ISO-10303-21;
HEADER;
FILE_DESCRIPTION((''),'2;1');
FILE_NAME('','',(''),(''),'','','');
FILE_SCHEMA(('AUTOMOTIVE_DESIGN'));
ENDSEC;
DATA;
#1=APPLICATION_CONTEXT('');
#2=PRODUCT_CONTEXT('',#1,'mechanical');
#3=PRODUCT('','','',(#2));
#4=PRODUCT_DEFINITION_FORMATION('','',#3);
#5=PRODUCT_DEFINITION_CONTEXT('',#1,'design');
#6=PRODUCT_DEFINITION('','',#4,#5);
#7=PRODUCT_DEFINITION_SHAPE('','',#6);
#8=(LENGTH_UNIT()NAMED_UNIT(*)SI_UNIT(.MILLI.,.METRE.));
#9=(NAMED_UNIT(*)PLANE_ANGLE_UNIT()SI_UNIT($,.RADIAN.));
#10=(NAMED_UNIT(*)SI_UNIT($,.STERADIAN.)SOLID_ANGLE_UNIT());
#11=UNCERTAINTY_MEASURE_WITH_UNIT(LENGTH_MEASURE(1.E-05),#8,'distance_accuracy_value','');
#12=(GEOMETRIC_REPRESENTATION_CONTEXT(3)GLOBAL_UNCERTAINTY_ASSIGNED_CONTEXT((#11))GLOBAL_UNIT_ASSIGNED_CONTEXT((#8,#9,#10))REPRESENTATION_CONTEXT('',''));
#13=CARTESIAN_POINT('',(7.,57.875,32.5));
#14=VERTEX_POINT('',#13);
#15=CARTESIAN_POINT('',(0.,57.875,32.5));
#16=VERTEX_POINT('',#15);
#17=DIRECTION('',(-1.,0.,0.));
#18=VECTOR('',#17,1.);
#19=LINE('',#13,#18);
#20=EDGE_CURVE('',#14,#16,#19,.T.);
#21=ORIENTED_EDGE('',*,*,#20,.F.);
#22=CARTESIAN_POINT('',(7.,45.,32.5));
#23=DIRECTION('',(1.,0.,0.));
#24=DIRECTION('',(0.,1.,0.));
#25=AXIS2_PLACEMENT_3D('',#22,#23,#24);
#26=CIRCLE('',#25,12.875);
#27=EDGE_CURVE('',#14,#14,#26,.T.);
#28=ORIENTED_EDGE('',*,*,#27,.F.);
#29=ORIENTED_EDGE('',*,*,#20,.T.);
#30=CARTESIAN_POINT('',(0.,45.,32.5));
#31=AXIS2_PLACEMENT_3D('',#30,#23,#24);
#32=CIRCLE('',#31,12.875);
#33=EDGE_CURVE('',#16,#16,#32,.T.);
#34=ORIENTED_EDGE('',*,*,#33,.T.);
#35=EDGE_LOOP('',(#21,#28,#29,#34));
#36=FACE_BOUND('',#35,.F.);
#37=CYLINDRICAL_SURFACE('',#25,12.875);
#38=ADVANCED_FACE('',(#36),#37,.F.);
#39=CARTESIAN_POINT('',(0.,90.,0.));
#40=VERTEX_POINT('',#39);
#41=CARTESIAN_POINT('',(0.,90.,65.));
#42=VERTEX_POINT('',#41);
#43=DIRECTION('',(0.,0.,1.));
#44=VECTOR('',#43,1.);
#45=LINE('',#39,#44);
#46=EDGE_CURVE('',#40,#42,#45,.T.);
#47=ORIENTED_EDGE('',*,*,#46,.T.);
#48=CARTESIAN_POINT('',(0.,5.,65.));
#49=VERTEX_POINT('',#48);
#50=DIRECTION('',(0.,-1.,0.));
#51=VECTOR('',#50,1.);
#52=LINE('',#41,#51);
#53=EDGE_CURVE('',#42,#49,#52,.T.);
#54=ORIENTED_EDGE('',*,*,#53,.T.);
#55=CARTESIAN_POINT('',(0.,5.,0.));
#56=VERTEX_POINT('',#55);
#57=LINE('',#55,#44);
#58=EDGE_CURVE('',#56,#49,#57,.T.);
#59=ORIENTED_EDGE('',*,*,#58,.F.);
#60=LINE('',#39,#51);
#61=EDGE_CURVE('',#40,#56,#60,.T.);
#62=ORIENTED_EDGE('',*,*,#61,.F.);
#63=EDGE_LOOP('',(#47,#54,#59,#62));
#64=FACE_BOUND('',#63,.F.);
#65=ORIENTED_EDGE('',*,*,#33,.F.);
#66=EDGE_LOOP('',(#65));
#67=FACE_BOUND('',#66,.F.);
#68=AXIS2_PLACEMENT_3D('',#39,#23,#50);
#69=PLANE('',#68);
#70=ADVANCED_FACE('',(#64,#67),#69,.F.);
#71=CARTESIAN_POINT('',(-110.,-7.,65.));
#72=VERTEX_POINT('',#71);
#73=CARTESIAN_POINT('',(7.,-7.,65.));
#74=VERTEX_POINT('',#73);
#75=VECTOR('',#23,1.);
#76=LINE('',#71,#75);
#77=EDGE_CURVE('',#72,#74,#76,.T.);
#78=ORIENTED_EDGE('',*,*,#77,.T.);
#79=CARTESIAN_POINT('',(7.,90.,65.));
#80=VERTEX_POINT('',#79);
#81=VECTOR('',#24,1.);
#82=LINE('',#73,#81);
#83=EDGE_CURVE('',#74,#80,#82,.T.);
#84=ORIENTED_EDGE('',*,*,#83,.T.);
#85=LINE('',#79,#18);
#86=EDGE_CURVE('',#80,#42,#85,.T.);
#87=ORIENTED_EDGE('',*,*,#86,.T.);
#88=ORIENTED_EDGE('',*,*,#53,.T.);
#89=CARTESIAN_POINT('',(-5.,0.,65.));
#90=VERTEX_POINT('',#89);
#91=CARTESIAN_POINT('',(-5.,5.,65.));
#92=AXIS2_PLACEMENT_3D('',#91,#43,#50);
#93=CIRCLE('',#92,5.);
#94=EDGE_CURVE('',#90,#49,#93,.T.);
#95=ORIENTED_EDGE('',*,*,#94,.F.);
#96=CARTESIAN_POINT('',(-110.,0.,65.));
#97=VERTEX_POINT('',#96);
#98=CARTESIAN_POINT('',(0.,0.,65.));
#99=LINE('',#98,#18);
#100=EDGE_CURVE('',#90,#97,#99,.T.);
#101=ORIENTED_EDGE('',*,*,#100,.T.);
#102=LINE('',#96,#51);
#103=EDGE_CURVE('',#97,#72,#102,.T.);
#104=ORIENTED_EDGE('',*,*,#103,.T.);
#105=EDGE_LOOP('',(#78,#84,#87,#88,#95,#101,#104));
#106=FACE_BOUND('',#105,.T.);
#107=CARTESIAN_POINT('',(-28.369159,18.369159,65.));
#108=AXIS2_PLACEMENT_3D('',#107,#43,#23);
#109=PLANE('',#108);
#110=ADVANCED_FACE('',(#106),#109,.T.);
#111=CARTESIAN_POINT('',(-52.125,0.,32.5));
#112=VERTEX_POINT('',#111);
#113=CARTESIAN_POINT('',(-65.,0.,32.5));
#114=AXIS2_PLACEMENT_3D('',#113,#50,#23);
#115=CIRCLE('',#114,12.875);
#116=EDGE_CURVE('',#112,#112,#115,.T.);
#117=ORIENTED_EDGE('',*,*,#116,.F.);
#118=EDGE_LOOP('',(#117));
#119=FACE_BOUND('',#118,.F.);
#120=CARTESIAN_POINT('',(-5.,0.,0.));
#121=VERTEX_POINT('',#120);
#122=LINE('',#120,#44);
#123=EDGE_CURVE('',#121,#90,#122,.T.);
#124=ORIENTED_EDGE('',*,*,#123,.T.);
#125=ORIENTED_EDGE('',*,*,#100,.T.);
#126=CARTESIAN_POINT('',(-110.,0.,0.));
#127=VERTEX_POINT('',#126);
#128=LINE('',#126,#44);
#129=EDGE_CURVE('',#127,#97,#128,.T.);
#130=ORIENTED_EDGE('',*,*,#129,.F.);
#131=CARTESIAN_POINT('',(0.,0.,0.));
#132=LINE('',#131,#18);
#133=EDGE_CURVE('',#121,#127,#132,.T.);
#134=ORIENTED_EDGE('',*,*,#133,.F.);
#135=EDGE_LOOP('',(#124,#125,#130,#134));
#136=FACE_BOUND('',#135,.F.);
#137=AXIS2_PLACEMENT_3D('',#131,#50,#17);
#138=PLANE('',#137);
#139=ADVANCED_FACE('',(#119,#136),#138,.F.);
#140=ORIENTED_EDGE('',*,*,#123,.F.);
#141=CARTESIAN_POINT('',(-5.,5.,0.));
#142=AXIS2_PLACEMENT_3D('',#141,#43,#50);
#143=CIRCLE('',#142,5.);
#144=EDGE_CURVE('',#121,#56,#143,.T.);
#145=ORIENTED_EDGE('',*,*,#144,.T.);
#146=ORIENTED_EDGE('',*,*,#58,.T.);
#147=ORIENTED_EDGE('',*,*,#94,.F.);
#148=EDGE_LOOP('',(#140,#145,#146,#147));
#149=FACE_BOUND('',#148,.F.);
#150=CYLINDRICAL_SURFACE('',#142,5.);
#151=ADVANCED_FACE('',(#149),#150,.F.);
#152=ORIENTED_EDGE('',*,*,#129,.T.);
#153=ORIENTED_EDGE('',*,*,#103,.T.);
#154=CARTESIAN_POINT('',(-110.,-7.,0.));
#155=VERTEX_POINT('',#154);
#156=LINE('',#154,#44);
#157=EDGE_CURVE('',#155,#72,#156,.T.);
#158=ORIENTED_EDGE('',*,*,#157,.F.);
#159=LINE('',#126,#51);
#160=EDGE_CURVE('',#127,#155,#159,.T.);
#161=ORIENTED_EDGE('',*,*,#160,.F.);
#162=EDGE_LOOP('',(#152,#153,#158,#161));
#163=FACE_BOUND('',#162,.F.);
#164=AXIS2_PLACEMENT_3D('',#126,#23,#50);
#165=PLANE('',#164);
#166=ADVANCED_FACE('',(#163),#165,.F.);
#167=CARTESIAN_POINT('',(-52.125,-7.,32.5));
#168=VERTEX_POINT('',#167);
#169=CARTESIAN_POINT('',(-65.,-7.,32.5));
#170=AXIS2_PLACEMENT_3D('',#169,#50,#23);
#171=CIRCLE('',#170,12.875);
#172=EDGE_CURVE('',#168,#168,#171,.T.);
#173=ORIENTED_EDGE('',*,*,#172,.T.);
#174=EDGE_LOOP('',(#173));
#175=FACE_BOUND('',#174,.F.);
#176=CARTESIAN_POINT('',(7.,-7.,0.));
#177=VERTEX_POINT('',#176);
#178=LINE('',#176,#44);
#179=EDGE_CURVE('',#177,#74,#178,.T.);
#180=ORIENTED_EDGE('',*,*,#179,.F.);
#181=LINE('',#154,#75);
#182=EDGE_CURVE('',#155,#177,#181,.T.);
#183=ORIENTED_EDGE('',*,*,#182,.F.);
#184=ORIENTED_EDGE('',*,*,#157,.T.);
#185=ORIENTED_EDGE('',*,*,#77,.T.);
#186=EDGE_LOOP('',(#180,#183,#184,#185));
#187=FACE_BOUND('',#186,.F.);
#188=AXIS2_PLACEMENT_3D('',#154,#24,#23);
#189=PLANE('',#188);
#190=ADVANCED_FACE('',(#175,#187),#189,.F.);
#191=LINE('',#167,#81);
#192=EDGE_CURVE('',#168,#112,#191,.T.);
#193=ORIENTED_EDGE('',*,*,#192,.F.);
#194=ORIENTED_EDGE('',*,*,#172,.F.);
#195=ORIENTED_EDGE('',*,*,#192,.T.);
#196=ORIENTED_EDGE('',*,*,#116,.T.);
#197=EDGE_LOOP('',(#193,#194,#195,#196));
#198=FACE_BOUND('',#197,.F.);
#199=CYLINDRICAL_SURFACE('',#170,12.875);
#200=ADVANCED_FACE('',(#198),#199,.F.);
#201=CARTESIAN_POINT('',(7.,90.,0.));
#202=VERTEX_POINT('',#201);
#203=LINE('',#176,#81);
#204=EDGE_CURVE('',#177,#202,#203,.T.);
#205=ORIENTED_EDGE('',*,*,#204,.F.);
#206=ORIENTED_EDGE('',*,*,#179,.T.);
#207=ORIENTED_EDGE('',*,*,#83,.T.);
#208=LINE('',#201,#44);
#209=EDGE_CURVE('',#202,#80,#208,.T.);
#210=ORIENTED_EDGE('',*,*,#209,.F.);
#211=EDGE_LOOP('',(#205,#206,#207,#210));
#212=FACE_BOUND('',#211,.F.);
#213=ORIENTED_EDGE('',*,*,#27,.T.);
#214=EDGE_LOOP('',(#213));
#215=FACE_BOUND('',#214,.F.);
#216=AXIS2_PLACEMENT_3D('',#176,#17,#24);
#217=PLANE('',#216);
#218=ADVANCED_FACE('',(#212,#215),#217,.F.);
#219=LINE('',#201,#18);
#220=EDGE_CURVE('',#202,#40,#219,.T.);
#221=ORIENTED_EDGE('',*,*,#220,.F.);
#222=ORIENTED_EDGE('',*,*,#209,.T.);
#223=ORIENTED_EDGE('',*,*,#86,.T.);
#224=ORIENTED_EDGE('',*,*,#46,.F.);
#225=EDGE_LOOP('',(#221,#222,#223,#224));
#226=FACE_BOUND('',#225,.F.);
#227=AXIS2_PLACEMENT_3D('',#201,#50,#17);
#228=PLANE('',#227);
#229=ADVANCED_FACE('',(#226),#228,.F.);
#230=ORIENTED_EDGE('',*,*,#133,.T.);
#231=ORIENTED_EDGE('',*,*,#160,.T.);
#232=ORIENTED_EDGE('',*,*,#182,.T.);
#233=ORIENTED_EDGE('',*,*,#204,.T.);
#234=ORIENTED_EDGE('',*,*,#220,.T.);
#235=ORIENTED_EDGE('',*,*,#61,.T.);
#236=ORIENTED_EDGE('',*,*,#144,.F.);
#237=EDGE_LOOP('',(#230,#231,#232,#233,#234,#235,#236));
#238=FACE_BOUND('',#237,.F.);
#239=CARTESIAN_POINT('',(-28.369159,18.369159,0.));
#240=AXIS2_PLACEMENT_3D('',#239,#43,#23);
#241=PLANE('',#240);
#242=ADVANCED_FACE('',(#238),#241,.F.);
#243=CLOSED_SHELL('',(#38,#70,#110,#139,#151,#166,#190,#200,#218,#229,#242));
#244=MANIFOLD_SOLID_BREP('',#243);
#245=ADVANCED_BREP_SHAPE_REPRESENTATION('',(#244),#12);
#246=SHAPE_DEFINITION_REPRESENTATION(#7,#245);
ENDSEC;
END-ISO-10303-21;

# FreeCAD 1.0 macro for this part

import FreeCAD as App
import Part
import Sketcher

V = App.Vector


def edges_at(feature, points):
    """Names of the edges that pass closest to the given points."""
    edges = feature.Shape.Edges
    near = lambda p: min(range(len(edges)), key=lambda i: edges[i].distToShape(Part.Vertex(*p))[0])
    return sorted({f"Edge{near(p) + 1}" for p in points})


def add_polygon(sketch, points):
    """Adds a closed chain of lines whose ends are joined by coincident constraints."""
    first, n = sketch.GeometryCount, len(points)
    for a, b in zip(points, points[1:] + points[:1]):
        sketch.addGeometry(Part.LineSegment(App.Vector(*a, 0), App.Vector(*b, 0)), False)
    for i in range(n):
        sketch.addConstraint(Sketcher.Constraint("Coincident", first + i, 2, first + (i + 1) % n, 1))

doc = App.newDocument("Part")
body = doc.addObject("PartDesign::Body", "Body")

sketch1 = doc.addObject("Sketcher::SketchObject", "Sketch")
body.addObject(sketch1)
sketch1.AttachmentSupport = (doc.XY_Plane, [""])
sketch1.MapMode = "FlatFace"
add_polygon(sketch1, [(0, 0), (-110, 0), (-110, -7), (7, -7), (7, 90), (0, 90)])
sketch1.addConstraint([
    Sketcher.Constraint("Horizontal", 0),
    Sketcher.Constraint("Vertical", 1),
    Sketcher.Constraint("Horizontal", 2),
    Sketcher.Constraint("Vertical", 3),
    Sketcher.Constraint("Horizontal", 4),
    Sketcher.Constraint("Vertical", 5),
    Sketcher.Constraint("Coincident", 5, 2, -1, 1),
    Sketcher.Constraint("Equal", 4, 1),
    Sketcher.Constraint("DistanceX", 0, 2, 0, 1, 110.0),
    Sketcher.Constraint("DistanceX", 2, 1, 2, 2, 117.0),
    Sketcher.Constraint("DistanceY", 3, 1, 3, 2, 97.0),
])
pad1 = doc.addObject("PartDesign::Pad", "Pad")
body.addObject(pad1)
pad1.Profile = sketch1
pad1.Length = 65
doc.recompute()

fillet = doc.addObject("PartDesign::Fillet", "Fillet")
body.addObject(fillet)
fillet.Base = (pad1, edges_at(pad1, [(0, 0, 32.5)]))
fillet.Radius = 5

sketch2 = doc.addObject("Sketcher::SketchObject", "Sketch001")
body.addObject(sketch2)
sketch2.AttachmentSupport = (doc.YZ_Plane, [""])
sketch2.MapMode = "FlatFace"
sketch2.AttachmentOffset = App.Placement(V(0, 0, 7), App.Rotation())
sketch2.addGeometry(Part.Circle(V(45, 32, 0), V(0, 0, 1), 13), False)
sketch2.addConstraint([
    Sketcher.Constraint("Diameter", 0, 25.75),
    Sketcher.Constraint("DistanceX", -1, 1, 0, 3, 45.0),
    Sketcher.Constraint("DistanceY", -1, 1, 0, 3, 32.5),
])
pocket1 = doc.addObject("PartDesign::Pocket", "Pocket")
body.addObject(pocket1)
pocket1.Profile = sketch2
pocket1.Length = 7

sketch3 = doc.addObject("Sketcher::SketchObject", "Sketch002")
body.addObject(sketch3)
sketch3.AttachmentSupport = (doc.XZ_Plane, [""])
sketch3.MapMode = "FlatFace"
sketch3.AttachmentOffset = App.Placement(V(0, 0, 7), App.Rotation())
sketch3.addGeometry(Part.Circle(V(-65, 32, 0), V(0, 0, 1), 13), False)
sketch3.addConstraint([
    Sketcher.Constraint("Diameter", 0, 25.75),
    Sketcher.Constraint("DistanceX", 0, 3, -1, 1, 65.0),
    Sketcher.Constraint("DistanceY", -1, 1, 0, 3, 32.5),
])
pocket2 = doc.addObject("PartDesign::Pocket", "Pocket001")
body.addObject(pocket2)
pocket2.Profile = sketch3
pocket2.Length = 7

doc.recompute()
